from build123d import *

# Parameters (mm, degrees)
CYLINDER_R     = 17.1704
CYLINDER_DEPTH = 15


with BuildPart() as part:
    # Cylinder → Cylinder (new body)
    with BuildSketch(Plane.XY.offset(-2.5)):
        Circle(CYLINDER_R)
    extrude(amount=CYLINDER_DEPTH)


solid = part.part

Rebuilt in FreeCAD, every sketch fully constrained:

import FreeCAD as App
import Part
import Sketcher
Q = App.Units.Quantity

doc = App.newDocument("Part")
body = doc.addObject("PartDesign::Body", "Body")

# Sketch on XY plane
sketch1 = body.newObject("Sketcher::SketchObject", "Sketch")
sketch1.AttachmentSupport = (doc.getObject("XY_Plane"), [""])
sketch1.MapMode = "FlatFace"
sketch1.AttachmentOffset = App.Placement(App.Vector(0, 0, -2.5), App.Rotation())
sketch1.addGeometry(Part.Circle(App.Vector(0, 0, 0), App.Vector(0, 0, 1), 17), False)
sketch1.addConstraint([
    Sketcher.Constraint("Coincident", 0, 3, -1, 1),
    Sketcher.Constraint("Diameter", 0, Q("34.3408 mm")),
])
pad1 = body.newObject("PartDesign::Pad", "Pad")
pad1.Profile = sketch1
pad1.Length = 15

doc.recompute()
